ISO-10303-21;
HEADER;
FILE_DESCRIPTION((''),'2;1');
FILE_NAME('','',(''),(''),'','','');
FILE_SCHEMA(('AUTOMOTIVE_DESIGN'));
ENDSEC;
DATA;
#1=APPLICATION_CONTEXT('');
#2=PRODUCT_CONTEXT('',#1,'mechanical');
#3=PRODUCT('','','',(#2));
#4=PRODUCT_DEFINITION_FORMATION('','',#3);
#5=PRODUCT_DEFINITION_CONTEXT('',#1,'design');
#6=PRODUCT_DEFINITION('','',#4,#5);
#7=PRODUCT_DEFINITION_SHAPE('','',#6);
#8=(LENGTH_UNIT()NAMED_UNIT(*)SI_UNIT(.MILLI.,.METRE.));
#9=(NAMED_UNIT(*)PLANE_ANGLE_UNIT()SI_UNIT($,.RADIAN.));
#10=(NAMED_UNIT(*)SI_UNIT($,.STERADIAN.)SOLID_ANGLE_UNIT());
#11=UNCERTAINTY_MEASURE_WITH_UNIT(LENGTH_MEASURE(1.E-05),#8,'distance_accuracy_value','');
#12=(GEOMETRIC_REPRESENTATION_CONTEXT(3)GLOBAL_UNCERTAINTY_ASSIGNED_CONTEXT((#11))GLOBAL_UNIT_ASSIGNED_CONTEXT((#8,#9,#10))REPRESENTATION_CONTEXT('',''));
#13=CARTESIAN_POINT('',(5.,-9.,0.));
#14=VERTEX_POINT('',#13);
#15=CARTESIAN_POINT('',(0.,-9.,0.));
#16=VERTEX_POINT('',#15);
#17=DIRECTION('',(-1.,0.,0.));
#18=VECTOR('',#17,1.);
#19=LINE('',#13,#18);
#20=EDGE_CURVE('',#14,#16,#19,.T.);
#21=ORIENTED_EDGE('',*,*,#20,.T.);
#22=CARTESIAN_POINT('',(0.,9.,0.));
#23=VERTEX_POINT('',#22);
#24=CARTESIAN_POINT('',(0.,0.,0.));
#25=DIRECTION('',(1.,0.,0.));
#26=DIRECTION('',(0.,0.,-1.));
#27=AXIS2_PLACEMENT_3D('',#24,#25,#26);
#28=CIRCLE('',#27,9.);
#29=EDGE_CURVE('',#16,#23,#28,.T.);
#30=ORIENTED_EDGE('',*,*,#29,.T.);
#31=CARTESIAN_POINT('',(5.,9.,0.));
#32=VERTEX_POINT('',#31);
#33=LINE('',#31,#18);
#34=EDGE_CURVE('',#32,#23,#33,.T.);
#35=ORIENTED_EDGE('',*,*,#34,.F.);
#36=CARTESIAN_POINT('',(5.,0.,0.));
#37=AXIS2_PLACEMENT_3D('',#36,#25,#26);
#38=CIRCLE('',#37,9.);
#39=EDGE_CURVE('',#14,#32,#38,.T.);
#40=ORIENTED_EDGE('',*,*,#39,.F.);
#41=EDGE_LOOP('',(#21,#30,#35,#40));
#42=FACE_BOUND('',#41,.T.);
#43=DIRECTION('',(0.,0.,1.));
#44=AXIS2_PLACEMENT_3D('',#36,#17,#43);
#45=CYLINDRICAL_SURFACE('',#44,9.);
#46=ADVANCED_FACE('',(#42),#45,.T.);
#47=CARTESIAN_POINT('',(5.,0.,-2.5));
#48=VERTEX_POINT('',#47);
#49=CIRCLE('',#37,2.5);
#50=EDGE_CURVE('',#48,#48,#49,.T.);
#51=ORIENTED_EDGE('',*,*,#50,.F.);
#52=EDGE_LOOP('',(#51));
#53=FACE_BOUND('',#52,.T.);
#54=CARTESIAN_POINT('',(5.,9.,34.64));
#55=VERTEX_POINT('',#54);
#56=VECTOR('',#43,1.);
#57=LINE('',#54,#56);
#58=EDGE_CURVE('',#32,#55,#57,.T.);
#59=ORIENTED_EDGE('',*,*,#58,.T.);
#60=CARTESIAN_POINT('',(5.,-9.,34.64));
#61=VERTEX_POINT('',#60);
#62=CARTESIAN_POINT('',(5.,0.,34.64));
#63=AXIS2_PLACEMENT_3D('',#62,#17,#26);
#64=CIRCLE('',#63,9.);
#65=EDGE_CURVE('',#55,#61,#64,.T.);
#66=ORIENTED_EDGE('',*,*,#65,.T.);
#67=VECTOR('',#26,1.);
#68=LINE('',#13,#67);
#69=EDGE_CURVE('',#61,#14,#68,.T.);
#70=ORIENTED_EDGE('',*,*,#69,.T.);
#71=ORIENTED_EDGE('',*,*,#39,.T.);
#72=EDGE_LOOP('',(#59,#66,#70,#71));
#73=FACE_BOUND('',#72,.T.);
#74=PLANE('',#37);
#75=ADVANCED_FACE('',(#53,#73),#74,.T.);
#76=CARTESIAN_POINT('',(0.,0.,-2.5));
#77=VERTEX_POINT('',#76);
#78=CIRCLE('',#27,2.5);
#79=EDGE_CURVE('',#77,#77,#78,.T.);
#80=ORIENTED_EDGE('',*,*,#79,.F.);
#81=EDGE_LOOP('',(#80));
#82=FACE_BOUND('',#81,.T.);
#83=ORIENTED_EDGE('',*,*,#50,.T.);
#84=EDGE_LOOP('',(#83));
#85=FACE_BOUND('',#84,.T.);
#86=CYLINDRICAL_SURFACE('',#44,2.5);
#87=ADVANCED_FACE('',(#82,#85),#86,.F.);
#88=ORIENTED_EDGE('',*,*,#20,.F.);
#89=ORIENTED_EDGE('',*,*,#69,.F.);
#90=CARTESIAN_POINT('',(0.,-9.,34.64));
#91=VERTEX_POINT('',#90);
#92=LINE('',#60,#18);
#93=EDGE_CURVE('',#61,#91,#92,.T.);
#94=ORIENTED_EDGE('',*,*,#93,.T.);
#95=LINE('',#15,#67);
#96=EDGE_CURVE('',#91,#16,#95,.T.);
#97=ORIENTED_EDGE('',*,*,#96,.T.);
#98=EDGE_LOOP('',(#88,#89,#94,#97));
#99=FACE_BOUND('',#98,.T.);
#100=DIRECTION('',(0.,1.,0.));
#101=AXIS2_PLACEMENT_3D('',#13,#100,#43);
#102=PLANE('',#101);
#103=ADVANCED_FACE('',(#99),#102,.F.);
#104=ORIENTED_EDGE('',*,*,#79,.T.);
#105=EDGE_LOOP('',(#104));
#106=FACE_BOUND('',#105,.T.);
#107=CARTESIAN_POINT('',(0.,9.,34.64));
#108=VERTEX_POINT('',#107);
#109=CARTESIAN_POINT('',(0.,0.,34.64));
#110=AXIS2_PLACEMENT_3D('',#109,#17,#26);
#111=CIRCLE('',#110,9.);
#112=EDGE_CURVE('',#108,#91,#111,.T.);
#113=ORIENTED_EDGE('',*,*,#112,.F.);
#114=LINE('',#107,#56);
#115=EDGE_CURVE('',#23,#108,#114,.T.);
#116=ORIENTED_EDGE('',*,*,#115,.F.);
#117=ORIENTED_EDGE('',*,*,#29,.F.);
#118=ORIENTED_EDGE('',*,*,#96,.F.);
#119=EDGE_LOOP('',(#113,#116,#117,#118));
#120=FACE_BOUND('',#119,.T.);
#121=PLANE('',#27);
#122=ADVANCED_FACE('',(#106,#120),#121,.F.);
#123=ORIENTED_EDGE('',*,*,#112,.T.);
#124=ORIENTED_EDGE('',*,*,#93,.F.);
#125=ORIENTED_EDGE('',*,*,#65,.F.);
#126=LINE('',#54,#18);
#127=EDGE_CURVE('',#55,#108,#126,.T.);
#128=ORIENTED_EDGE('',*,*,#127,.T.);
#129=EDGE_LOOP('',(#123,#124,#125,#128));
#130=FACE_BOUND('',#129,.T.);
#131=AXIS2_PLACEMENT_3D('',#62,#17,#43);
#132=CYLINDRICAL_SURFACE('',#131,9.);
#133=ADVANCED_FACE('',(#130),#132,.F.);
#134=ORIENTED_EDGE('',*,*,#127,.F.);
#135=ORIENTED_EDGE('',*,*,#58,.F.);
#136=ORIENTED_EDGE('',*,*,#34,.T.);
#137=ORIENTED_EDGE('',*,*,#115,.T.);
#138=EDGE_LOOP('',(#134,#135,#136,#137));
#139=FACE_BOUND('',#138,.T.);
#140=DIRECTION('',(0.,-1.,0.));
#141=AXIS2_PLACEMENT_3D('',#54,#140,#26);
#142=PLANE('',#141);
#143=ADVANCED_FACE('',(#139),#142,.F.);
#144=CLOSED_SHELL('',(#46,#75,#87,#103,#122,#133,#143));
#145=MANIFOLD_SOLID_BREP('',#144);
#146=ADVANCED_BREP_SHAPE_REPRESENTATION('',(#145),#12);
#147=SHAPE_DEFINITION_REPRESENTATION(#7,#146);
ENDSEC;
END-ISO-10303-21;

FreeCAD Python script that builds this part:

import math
import FreeCAD as App
import Part
import Sketcher

doc = App.newDocument("Part")
body = doc.addObject("PartDesign::Body", "Body")

sketch1 = doc.addObject("Sketcher::SketchObject", "Sketch")
body.addObject(sketch1)
sketch1.AttachmentSupport = (doc.YZ_Plane, [""])
sketch1.MapMode = "FlatFace"
sketch1.addGeometry([
    Part.LineSegment(App.Vector(-9, 34.64, 0), App.Vector(-9, 0, 0)),
    Part.ArcOfCircle(Part.Circle(App.Vector(0, 0, 0), App.Vector(0, 0, 1), 9), math.radians(180), math.radians(360)),
    Part.LineSegment(App.Vector(9, 0, 0), App.Vector(9, 34.64, 0)),
    Part.ArcOfCircle(Part.Circle(App.Vector(0, 34.64, 0), App.Vector(0, 0, 1), 9), math.radians(180), math.radians(360)),
    Part.Circle(App.Vector(0, 0, 0), App.Vector(0, 0, 1), 2.5),
], False)
sketch1.addConstraint([
    Sketcher.Constraint("Tangent", 0, 2, 1, 1),
    Sketcher.Constraint("Tangent", 1, 2, 2, 1),
    Sketcher.Constraint("Tangent", 2, 2, 3, 2),
    Sketcher.Constraint("Tangent", 3, 1, 0, 1),
    Sketcher.Constraint("Vertical", 0),
    Sketcher.Constraint("Vertical", 2),
    Sketcher.Constraint("Coincident", 1, 3, -1, 1),
    Sketcher.Constraint("Coincident", 4, 3, -1, 1),
    Sketcher.Constraint("Diameter", 4, 5.0),
    Sketcher.Constraint("Radius", 1, 9.0),
    Sketcher.Constraint("DistanceY", 0, 2, 0, 1, 34.64),
])
pad1 = doc.addObject("PartDesign::Pad", "Pad")
body.addObject(pad1)
pad1.Profile = sketch1
pad1.Length = 5

doc.recompute()
